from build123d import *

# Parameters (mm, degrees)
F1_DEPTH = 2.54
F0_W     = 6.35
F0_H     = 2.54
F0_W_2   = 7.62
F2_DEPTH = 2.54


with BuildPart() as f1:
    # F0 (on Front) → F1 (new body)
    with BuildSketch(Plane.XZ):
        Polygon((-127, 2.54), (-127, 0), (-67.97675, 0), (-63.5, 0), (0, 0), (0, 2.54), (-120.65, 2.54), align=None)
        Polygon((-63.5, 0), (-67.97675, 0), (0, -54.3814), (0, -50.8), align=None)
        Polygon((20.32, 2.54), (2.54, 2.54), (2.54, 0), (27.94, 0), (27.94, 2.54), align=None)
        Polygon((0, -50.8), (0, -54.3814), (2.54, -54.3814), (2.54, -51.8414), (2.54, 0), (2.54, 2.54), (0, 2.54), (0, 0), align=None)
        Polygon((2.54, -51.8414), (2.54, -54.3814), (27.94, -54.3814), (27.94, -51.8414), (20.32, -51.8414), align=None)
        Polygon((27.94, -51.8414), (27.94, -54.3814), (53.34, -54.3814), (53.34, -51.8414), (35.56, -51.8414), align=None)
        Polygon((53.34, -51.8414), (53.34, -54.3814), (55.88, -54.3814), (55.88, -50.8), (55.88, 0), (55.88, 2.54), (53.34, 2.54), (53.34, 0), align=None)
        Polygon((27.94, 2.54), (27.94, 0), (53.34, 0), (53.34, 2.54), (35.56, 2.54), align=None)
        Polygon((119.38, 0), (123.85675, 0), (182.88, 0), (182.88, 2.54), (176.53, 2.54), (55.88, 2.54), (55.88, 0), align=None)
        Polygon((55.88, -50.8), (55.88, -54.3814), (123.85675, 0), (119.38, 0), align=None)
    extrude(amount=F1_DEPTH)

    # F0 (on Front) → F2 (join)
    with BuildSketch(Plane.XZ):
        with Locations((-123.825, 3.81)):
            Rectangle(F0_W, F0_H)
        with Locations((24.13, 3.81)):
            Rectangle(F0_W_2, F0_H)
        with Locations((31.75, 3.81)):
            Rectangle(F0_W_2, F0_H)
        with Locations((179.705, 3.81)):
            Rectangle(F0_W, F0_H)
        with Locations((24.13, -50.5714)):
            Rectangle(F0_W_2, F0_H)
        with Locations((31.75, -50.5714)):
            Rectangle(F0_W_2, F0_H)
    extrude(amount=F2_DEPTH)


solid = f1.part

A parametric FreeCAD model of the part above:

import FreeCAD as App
import Part
import Sketcher
Q = App.Units.Quantity

doc = App.newDocument("Part")
body = doc.addObject("PartDesign::Body", "Body")

sketch1 = body.newObject("Sketcher::SketchObject", "Sketch")
sketch1.AttachmentSupport = (doc.getObject("XZ_Plane"), [""])
sketch1.MapMode = "FlatFace"
sketch1.addGeometry(Part.LineSegment(App.Vector(-127, 2.5, 0), App.Vector(-127, 0, 0)), False)
sketch1.addGeometry(Part.LineSegment(App.Vector(-127, 0, 0), App.Vector(-68, 0, 0)), False)
sketch1.addGeometry(Part.LineSegment(App.Vector(-68, 0, 0), App.Vector(0, -54.4, 0)), False)
sketch1.addGeometry(Part.LineSegment(App.Vector(0, -54.4, 0), App.Vector(55.9, -54.4, 0)), False)
sketch1.addGeometry(Part.LineSegment(App.Vector(55.9, -54.4, 0), App.Vector(123.9, 0, 0)), False)
sketch1.addGeometry(Part.LineSegment(App.Vector(123.9, 0, 0), App.Vector(182.9, 0, 0)), False)
sketch1.addGeometry(Part.LineSegment(App.Vector(182.9, 0, 0), App.Vector(182.9, 2.5, 0)), False)
sketch1.addGeometry(Part.LineSegment(App.Vector(182.9, 2.5, 0), App.Vector(-127, 2.5, 0)), False)
sketch1.addGeometry(Part.LineSegment(App.Vector(55.9, -50.8, 0), App.Vector(55.9, 0, 0)), False)
sketch1.addGeometry(Part.LineSegment(App.Vector(55.9, 0, 0), App.Vector(119.4, 0, 0)), False)
sketch1.addGeometry(Part.LineSegment(App.Vector(119.4, 0, 0), App.Vector(55.9, -50.8, 0)), False)
sketch1.addGeometry(Part.LineSegment(App.Vector(53.3, 0, 0), App.Vector(53.3, -51.8, 0)), False)
sketch1.addGeometry(Part.LineSegment(App.Vector(53.3, -51.8, 0), App.Vector(2.5, -51.8, 0)), False)
sketch1.addGeometry(Part.LineSegment(App.Vector(2.5, -51.8, 0), App.Vector(2.5, 0, 0)), False)
sketch1.addGeometry(Part.LineSegment(App.Vector(2.5, 0, 0), App.Vector(53.3, 0, 0)), False)
sketch1.addGeometry(Part.LineSegment(App.Vector(0, -50.8, 0), App.Vector(-63.5, 0, 0)), False)
sketch1.addGeometry(Part.LineSegment(App.Vector(-63.5, 0, 0), App.Vector(0, 0, 0)), False)
sketch1.addGeometry(Part.LineSegment(App.Vector(0, 0, 0), App.Vector(0, -50.8, 0)), False)
sketch1.addConstraint(Sketcher.Constraint("Coincident", 0, 2, 1, 1))
sketch1.addConstraint(Sketcher.Constraint("Coincident", 1, 2, 2, 1))
sketch1.addConstraint(Sketcher.Constraint("Coincident", 2, 2, 3, 1))
sketch1.addConstraint(Sketcher.Constraint("Coincident", 3, 2, 4, 1))
sketch1.addConstraint(Sketcher.Constraint("Coincident", 4, 2, 5, 1))
sketch1.addConstraint(Sketcher.Constraint("Coincident", 5, 2, 6, 1))
sketch1.addConstraint(Sketcher.Constraint("Coincident", 6, 2, 7, 1))
sketch1.addConstraint(Sketcher.Constraint("Coincident", 7, 2, 0, 1))
sketch1.addConstraint(Sketcher.Constraint("Coincident", 8, 2, 9, 1))
sketch1.addConstraint(Sketcher.Constraint("Coincident", 9, 2, 10, 1))
sketch1.addConstraint(Sketcher.Constraint("Coincident", 10, 2, 8, 1))
sketch1.addConstraint(Sketcher.Constraint("Coincident", 11, 2, 12, 1))
sketch1.addConstraint(Sketcher.Constraint("Coincident", 12, 2, 13, 1))
sketch1.addConstraint(Sketcher.Constraint("Coincident", 13, 2, 14, 1))
sketch1.addConstraint(Sketcher.Constraint("Coincident", 14, 2, 11, 1))
sketch1.addConstraint(Sketcher.Constraint("Coincident", 15, 2, 16, 1))
sketch1.addConstraint(Sketcher.Constraint("Coincident", 16, 2, 17, 1))
sketch1.addConstraint(Sketcher.Constraint("Coincident", 17, 2, 15, 1))
sketch1.addConstraint(Sketcher.Constraint("Vertical", 0))
sketch1.addConstraint(Sketcher.Constraint("Horizontal", 1))
sketch1.addConstraint(Sketcher.Constraint("Horizontal", 3))
sketch1.addConstraint(Sketcher.Constraint("Horizontal", 5))
sketch1.addConstraint(Sketcher.Constraint("Vertical", 6))
sketch1.addConstraint(Sketcher.Constraint("Horizontal", 7))
sketch1.addConstraint(Sketcher.Constraint("Vertical", 8))
sketch1.addConstraint(Sketcher.Constraint("Horizontal", 9))
sketch1.addConstraint(Sketcher.Constraint("Vertical", 11))
sketch1.addConstraint(Sketcher.Constraint("Horizontal", 12))
sketch1.addConstraint(Sketcher.Constraint("Vertical", 13))
sketch1.addConstraint(Sketcher.Constraint("Horizontal", 14))
sketch1.addConstraint(Sketcher.Constraint("Horizontal", 16))
sketch1.addConstraint(Sketcher.Constraint("Vertical", 17))
sketch1.addConstraint(Sketcher.Constraint("Coincident", 16, 2, -1, 1))
sketch1.addConstraint(Sketcher.Constraint("PointOnObject", 0, 2, -1))
sketch1.addConstraint(Sketcher.Constraint("PointOnObject", 2, 2, -2))
sketch1.addConstraint(Sketcher.Constraint("PointOnObject", 4, 2, -1))
sketch1.addConstraint(Sketcher.Constraint("PointOnObject", 8, 2, -1))
sketch1.addConstraint(Sketcher.Constraint("PointOnObject", 13, 2, -1))
sketch1.addConstraint(Sketcher.Constraint("Parallel", 4, 10))
sketch1.addConstraint(Sketcher.Constraint("Parallel", 2, 15))
sketch1.addConstraint(Sketcher.Constraint("Horizontal", 10, 2, 17, 2))
sketch1.addConstraint(Sketcher.Constraint("Vertical", 3, 2, 8, 2))
sketch1.addConstraint(Sketcher.Constraint("Equal", 1, 5))
sketch1.addConstraint(Sketcher.Constraint("Equal", 9, 16))
sketch1.addConstraint(Sketcher.Constraint("Equal", 14, 8))
sketch1.addConstraint(Sketcher.Constraint("DistanceX", 12, 2, 12, 1, Q("2 in")))
sketch1.addConstraint(Sketcher.Constraint("DistanceX", 3, 1, 3, 2, Q("2.2 in")))
sketch1.addConstraint(Sketcher.Constraint("DistanceX", 7, 2, 7, 1, Q("12.2 in")))
sketch1.addConstraint(Sketcher.Constraint("DistanceX", 9, 1, 9, 2, Q("2.5 in")))
sketch1.addConstraint(Sketcher.Constraint("DistanceY", 0, 2, 0, 1, Q("0.1 in")))
sketch1.addConstraint(Sketcher.Constraint("DistanceX", -1, 1, 11, 2, Q("2.1 in")))
sketch1.addConstraint(Sketcher.Constraint("DistanceY", 3, 2, 11, 2, Q("0.1 in")))
sketch1.addConstraint(Sketcher.Constraint("DistanceY", 11, 2, 11, 1, Q("2.041 in")))
pad1 = body.newObject("PartDesign::Pad", "Pad")
pad1.Profile = sketch1
pad1.Length = Q("0.1 in")

sketch2 = body.newObject("Sketcher::SketchObject", "Sketch001")
sketch2.AttachmentSupport = (doc.getObject("XZ_Plane"), [""])
sketch2.MapMode = "FlatFace"
sketch2.addGeometry(Part.LineSegment(App.Vector(-127, 5.1, 0), App.Vector(-127, 2.5, 0)), False)
sketch2.addGeometry(Part.LineSegment(App.Vector(-127, 2.5, 0), App.Vector(-120.7, 2.5, 0)), False)
sketch2.addGeometry(Part.LineSegment(App.Vector(-120.7, 2.5, 0), App.Vector(-120.7, 5.1, 0)), False)
sketch2.addGeometry(Part.LineSegment(App.Vector(-120.7, 5.1, 0), App.Vector(-127, 5.1, 0)), False)
sketch2.addGeometry(Part.LineSegment(App.Vector(20.3, 5.1, 0), App.Vector(20.3, 2.5, 0)), False)
sketch2.addGeometry(Part.LineSegment(App.Vector(20.3, 2.5, 0), App.Vector(35.6, 2.5, 0)), False)
sketch2.addGeometry(Part.LineSegment(App.Vector(35.6, 2.5, 0), App.Vector(35.6, 5.1, 0)), False)
sketch2.addGeometry(Part.LineSegment(App.Vector(35.6, 5.1, 0), App.Vector(20.3, 5.1, 0)), False)
sketch2.addGeometry(Part.LineSegment(App.Vector(176.5, 5.1, 0), App.Vector(176.5, 2.5, 0)), False)
sketch2.addGeometry(Part.LineSegment(App.Vector(176.5, 2.5, 0), App.Vector(182.9, 2.5, 0)), False)
sketch2.addGeometry(Part.LineSegment(App.Vector(182.9, 2.5, 0), App.Vector(182.9, 5.1, 0)), False)
sketch2.addGeometry(Part.LineSegment(App.Vector(182.9, 5.1, 0), App.Vector(176.5, 5.1, 0)), False)
sketch2.addGeometry(Part.LineSegment(App.Vector(20.3, -49.3, 0), App.Vector(20.3, -51.8, 0)), False)
sketch2.addGeometry(Part.LineSegment(App.Vector(20.3, -51.8, 0), App.Vector(35.6, -51.8, 0)), False)
sketch2.addGeometry(Part.LineSegment(App.Vector(35.6, -51.8, 0), App.Vector(35.6, -49.3, 0)), False)
sketch2.addGeometry(Part.LineSegment(App.Vector(35.6, -49.3, 0), App.Vector(20.3, -49.3, 0)), False)
sketch2.addConstraint(Sketcher.Constraint("Coincident", 0, 2, 1, 1))
sketch2.addConstraint(Sketcher.Constraint("Coincident", 1, 2, 2, 1))
sketch2.addConstraint(Sketcher.Constraint("Coincident", 2, 2, 3, 1))
sketch2.addConstraint(Sketcher.Constraint("Coincident", 3, 2, 0, 1))
sketch2.addConstraint(Sketcher.Constraint("Coincident", 4, 2, 5, 1))
sketch2.addConstraint(Sketcher.Constraint("Coincident", 5, 2, 6, 1))
sketch2.addConstraint(Sketcher.Constraint("Coincident", 6, 2, 7, 1))
sketch2.addConstraint(Sketcher.Constraint("Coincident", 7, 2, 4, 1))
sketch2.addConstraint(Sketcher.Constraint("Coincident", 8, 2, 9, 1))
sketch2.addConstraint(Sketcher.Constraint("Coincident", 9, 2, 10, 1))
sketch2.addConstraint(Sketcher.Constraint("Coincident", 10, 2, 11, 1))
sketch2.addConstraint(Sketcher.Constraint("Coincident", 11, 2, 8, 1))
sketch2.addConstraint(Sketcher.Constraint("Coincident", 12, 2, 13, 1))
sketch2.addConstraint(Sketcher.Constraint("Coincident", 13, 2, 14, 1))
sketch2.addConstraint(Sketcher.Constraint("Coincident", 14, 2, 15, 1))
sketch2.addConstraint(Sketcher.Constraint("Coincident", 15, 2, 12, 1))
sketch2.addConstraint(Sketcher.Constraint("Vertical", 0))
sketch2.addConstraint(Sketcher.Constraint("Horizontal", 1))
sketch2.addConstraint(Sketcher.Constraint("Vertical", 2))
sketch2.addConstraint(Sketcher.Constraint("Horizontal", 3))
sketch2.addConstraint(Sketcher.Constraint("Vertical", 4))
sketch2.addConstraint(Sketcher.Constraint("Horizontal", 5))
sketch2.addConstraint(Sketcher.Constraint("Vertical", 6))
sketch2.addConstraint(Sketcher.Constraint("Horizontal", 7))
sketch2.addConstraint(Sketcher.Constraint("Vertical", 8))
sketch2.addConstraint(Sketcher.Constraint("Horizontal", 9))
sketch2.addConstraint(Sketcher.Constraint("Vertical", 10))
sketch2.addConstraint(Sketcher.Constraint("Horizontal", 11))
sketch2.addConstraint(Sketcher.Constraint("Vertical", 12))
sketch2.addConstraint(Sketcher.Constraint("Horizontal", 13))
sketch2.addConstraint(Sketcher.Constraint("Vertical", 14))
sketch2.addConstraint(Sketcher.Constraint("Horizontal", 15))
sketch2.addConstraint(Sketcher.Constraint("Horizontal", 1, 2, 4, 2))
sketch2.addConstraint(Sketcher.Constraint("Horizontal", 3, 2, 6, 2))
sketch2.addConstraint(Sketcher.Constraint("Horizontal", 5, 2, 8, 2))
sketch2.addConstraint(Sketcher.Constraint("Horizontal", 7, 2, 10, 2))
sketch2.addConstraint(Sketcher.Constraint("Vertical", 7, 2, 12, 2))
sketch2.addConstraint(Sketcher.Constraint("Vertical", 6, 2, 13, 2))
sketch2.addConstraint(Sketcher.Constraint("Equal", 3, 9))
sketch2.addConstraint(Sketcher.Constraint("Equal", 10, 12))
sketch2.addConstraint(Sketcher.Constraint("DistanceX", 5, 1, 5, 2, Q("0.6 in")))
sketch2.addConstraint(Sketcher.Constraint("DistanceY", 0, 2, 0, 1, Q("0.1 in")))
sketch2.addConstraint(Sketcher.Constraint("DistanceX", 0, 2, -1, 1, Q("5 in")))
sketch2.addConstraint(Sketcher.Constraint("DistanceX", 1, 1, 1, 2, Q("0.25 in")))
sketch2.addConstraint(Sketcher.Constraint("DistanceY", -1, 1, 0, 2, Q("0.1 in")))
sketch2.addConstraint(Sketcher.Constraint("DistanceX", -1, 1, 4, 2, Q("0.8 in")))
sketch2.addConstraint(Sketcher.Constraint("DistanceX", -1, 1, 9, 2, Q("7.2 in")))
sketch2.addConstraint(Sketcher.Constraint("DistanceY", 12, 2, -1, 1, Q("2.041 in")))
pad2 = body.newObject("PartDesign::Pad", "Pad001")
pad2.Profile = sketch2
pad2.Length = Q("0.1 in")

doc.recompute()
